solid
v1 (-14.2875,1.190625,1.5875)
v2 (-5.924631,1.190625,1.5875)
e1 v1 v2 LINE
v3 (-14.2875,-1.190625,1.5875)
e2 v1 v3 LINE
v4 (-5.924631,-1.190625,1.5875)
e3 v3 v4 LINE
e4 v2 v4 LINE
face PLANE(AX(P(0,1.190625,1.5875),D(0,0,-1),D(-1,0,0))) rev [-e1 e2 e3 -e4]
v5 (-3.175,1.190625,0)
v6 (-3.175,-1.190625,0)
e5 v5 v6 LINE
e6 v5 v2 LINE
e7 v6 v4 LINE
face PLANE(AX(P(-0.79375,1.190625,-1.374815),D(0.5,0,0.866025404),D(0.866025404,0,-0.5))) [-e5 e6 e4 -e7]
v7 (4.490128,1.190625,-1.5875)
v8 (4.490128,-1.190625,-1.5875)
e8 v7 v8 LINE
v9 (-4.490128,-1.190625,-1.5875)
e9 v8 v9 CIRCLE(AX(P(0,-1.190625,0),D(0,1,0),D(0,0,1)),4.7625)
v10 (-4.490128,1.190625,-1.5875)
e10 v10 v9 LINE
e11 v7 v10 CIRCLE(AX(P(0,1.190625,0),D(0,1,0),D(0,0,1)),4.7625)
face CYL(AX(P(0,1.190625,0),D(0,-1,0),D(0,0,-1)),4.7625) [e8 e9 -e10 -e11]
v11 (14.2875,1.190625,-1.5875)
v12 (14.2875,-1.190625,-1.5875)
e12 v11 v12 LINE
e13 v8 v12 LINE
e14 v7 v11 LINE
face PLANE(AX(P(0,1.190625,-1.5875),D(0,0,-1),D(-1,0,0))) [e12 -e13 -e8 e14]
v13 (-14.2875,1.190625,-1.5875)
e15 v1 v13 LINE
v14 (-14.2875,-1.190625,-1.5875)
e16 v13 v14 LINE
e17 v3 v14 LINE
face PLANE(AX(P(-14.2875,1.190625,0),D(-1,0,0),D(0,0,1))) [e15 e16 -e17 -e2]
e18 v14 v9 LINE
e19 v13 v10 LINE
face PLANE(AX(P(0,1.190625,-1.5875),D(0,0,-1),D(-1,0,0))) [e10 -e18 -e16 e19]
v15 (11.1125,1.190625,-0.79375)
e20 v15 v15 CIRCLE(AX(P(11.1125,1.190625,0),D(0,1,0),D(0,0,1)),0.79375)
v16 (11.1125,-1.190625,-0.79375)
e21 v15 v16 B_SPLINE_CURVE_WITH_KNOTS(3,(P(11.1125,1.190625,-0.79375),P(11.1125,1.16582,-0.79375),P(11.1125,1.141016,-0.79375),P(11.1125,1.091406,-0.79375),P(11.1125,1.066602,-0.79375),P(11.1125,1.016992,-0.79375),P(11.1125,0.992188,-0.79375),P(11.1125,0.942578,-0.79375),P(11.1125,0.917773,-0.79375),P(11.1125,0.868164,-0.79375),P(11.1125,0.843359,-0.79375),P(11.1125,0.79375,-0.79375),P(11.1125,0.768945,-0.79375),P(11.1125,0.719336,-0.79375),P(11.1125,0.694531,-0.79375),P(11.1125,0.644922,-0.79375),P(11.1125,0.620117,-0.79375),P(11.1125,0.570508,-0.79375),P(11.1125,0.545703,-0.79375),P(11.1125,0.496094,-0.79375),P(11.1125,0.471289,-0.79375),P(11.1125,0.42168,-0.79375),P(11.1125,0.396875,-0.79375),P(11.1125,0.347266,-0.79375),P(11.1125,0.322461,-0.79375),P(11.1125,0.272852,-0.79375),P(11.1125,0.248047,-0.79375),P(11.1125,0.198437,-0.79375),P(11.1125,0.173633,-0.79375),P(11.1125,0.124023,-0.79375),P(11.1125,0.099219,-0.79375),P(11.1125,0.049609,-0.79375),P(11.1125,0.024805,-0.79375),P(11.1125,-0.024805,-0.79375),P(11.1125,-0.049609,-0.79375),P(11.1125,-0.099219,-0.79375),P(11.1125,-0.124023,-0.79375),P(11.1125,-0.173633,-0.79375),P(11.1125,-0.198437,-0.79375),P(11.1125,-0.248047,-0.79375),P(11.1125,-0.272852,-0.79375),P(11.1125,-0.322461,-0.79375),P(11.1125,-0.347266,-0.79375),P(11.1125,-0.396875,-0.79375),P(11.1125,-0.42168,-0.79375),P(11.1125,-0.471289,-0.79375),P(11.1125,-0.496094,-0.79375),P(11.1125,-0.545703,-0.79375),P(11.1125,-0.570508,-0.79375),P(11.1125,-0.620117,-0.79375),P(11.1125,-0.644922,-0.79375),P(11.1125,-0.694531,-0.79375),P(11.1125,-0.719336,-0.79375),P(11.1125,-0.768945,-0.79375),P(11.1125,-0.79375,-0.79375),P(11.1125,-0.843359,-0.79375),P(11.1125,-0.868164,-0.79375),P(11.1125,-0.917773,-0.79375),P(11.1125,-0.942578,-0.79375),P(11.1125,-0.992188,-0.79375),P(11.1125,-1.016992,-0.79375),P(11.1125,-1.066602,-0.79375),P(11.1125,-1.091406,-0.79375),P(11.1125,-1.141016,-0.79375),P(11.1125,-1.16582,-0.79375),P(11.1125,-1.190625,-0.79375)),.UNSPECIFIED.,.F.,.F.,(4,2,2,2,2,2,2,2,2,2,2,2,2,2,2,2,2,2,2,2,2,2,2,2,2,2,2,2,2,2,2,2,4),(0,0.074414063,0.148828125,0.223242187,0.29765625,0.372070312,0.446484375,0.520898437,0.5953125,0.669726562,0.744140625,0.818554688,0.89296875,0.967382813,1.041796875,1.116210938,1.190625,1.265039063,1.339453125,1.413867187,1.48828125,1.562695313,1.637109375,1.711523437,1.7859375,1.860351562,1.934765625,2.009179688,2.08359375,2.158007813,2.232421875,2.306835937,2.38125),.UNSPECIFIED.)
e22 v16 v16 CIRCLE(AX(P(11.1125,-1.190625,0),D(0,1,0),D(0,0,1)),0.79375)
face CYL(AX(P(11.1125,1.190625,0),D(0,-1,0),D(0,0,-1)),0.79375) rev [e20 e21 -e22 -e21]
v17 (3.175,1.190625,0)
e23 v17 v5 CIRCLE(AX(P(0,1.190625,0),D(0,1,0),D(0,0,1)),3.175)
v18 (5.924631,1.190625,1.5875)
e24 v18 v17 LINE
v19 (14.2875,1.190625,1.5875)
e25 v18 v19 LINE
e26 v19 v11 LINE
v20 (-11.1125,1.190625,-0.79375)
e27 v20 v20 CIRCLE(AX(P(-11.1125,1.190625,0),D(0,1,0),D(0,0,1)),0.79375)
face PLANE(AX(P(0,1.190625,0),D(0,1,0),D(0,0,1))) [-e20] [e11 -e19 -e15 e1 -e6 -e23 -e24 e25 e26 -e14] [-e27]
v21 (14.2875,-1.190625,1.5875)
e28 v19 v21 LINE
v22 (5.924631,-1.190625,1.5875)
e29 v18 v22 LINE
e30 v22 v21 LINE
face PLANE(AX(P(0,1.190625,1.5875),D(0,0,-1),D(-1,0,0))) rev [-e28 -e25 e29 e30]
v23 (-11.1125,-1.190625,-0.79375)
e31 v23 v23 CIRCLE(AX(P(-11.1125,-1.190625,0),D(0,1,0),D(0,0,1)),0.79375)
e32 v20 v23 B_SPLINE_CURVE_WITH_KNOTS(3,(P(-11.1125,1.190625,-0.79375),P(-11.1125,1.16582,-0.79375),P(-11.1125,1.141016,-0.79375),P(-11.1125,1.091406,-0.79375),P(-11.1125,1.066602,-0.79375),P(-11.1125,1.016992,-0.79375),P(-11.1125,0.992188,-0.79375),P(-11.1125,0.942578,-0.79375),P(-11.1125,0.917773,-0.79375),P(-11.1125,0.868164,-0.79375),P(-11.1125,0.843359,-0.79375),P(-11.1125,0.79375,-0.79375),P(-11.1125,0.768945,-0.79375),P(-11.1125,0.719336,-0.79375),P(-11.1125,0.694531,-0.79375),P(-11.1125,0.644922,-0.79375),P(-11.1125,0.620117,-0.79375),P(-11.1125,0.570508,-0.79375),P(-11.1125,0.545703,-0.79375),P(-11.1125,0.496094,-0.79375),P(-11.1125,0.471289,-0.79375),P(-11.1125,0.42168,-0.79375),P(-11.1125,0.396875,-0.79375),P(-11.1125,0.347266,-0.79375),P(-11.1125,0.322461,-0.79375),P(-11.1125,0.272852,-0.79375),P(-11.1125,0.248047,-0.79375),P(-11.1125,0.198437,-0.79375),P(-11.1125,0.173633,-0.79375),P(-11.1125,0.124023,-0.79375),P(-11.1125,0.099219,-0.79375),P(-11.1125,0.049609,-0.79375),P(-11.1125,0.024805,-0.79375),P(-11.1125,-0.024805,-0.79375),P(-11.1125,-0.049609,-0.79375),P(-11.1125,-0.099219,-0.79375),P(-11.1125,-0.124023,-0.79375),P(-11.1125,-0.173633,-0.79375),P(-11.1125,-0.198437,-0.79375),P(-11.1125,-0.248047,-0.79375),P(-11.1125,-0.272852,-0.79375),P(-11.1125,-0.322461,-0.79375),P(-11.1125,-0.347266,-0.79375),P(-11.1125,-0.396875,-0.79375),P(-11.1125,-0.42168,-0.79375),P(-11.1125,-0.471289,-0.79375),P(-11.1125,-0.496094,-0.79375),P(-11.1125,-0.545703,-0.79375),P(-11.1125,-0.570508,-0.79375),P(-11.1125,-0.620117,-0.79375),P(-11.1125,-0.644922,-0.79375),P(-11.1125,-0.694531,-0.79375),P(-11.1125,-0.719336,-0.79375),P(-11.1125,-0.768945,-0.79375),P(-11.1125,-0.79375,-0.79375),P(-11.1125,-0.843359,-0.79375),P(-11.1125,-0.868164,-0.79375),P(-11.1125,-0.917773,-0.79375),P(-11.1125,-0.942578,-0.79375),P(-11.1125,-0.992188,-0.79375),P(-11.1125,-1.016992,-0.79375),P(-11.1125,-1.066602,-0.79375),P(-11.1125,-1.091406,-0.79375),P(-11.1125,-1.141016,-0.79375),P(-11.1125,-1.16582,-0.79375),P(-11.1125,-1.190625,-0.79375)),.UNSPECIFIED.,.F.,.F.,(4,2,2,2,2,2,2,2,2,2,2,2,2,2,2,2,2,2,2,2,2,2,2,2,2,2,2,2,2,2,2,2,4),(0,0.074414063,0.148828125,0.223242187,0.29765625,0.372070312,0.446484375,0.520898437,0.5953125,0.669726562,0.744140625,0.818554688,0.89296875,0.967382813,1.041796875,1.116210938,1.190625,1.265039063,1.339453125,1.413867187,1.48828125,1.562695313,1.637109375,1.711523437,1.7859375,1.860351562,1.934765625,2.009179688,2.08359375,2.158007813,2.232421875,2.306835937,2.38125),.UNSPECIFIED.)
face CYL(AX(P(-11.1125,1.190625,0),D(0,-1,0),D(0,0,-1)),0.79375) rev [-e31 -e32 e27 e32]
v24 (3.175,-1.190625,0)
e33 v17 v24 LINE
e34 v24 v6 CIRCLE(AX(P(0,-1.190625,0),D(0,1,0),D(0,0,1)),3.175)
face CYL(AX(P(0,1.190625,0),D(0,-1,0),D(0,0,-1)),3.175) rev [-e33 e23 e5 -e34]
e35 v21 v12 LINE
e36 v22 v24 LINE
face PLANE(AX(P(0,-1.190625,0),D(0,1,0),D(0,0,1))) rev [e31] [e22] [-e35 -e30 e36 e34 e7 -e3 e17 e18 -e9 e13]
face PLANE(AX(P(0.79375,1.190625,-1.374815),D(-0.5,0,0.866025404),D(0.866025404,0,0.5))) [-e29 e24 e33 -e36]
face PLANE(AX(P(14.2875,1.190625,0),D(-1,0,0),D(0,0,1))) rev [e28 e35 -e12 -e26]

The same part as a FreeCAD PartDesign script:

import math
import FreeCAD as App
import Part
import Sketcher

V = App.Vector
Q = App.Units.Quantity

doc = App.newDocument("Part")
body = doc.addObject("PartDesign::Body", "Body")

sketch1 = body.newObject("Sketcher::SketchObject", "Sketch")
sketch1.AttachmentSupport = (doc.getObject("XZ_Plane"), [""])
sketch1.MapMode = "FlatFace"
sketch1.addGeometry([
    Part.LineSegment(V(-5.9, 1.6, 0), V(-4.7, 0.9, 0)),
    Part.LineSegment(V(-4.7, 0.9, 0), V(-3.2, 0, 0)),
    Part.ArcOfCircle(Part.Circle(V(0, 0, 0), V(0, 0, 1), 3.2), math.radians(-180), math.radians(-150)),
    Part.ArcOfCircle(Part.Circle(V(0, 0, 0), V(0, 0, 1), 3.2), math.radians(-150), math.radians(-30)),
    Part.ArcOfCircle(Part.Circle(V(0, 0, 0), V(0, 0, 1), 3.2), math.radians(-30), math.radians(0)),
    Part.LineSegment(V(3.2, 0, 0), V(4.7, 0.9, 0)),
    Part.LineSegment(V(4.7, 0.9, 0), V(5.9, 1.6, 0)),
    Part.LineSegment(V(5.9, 1.6, 0), V(14.3, 1.6, 0)),
    Part.LineSegment(V(14.3, 1.6, 0), V(14.3, -1.6, 0)),
    Part.LineSegment(V(14.3, -1.6, 0), V(4.5, -1.6, 0)),
    Part.ArcOfCircle(Part.Circle(V(0, 0, 0), V(0, 0, 1), 4.8), math.radians(-161), math.radians(-19)),
    Part.LineSegment(V(-4.5, -1.6, 0), V(-14.3, -1.6, 0)),
    Part.LineSegment(V(-14.3, -1.6, 0), V(-14.3, 1.6, 0)),
    Part.LineSegment(V(-14.3, 1.6, 0), V(-5.9, 1.6, 0)),
    Part.Circle(V(-11.1, 0, 0), V(0, 0, 1), 0.8),
    Part.Circle(V(11.1, 0, 0), V(0, 0, 1), 0.8),
], False)
sketch1.addConstraint([
    Sketcher.Constraint("Coincident", 0, 2, 1, 1),
    Sketcher.Constraint("Coincident", 1, 2, 2, 1),
    Sketcher.Constraint("Tangent", 2, 2, 3, 1),
    Sketcher.Constraint("Tangent", 3, 2, 4, 1),
    Sketcher.Constraint("Coincident", 4, 2, 5, 1),
    Sketcher.Constraint("Coincident", 5, 2, 6, 1),
    Sketcher.Constraint("Coincident", 6, 2, 7, 1),
    Sketcher.Constraint("Coincident", 7, 2, 8, 1),
    Sketcher.Constraint("Coincident", 8, 2, 9, 1),
    Sketcher.Constraint("Coincident", 9, 2, 10, 2),
    Sketcher.Constraint("Coincident", 10, 1, 11, 1),
    Sketcher.Constraint("Coincident", 11, 2, 12, 1),
    Sketcher.Constraint("Coincident", 12, 2, 13, 1),
    Sketcher.Constraint("Coincident", 13, 2, 0, 1),
    Sketcher.Constraint("Horizontal", 7),
    Sketcher.Constraint("Vertical", 8),
    Sketcher.Constraint("Horizontal", 9),
    Sketcher.Constraint("Horizontal", 11),
    Sketcher.Constraint("Vertical", 12),
    Sketcher.Constraint("Horizontal", 13),
    Sketcher.Constraint("Coincident", 2, 3, -1, 1),
    Sketcher.Constraint("Coincident", 4, 3, -1, 1),
    Sketcher.Constraint("Coincident", 10, 3, -1, 1),
    Sketcher.Constraint("Equal", 14, 15),
    Sketcher.Constraint("Symmetric", 14, 3, 15, 3, -1, 1),
    Sketcher.Constraint("Symmetric", 7, 2, 11, 2, -1, 1),
    Sketcher.Constraint("Symmetric", 0, 2, 5, 2, -2),
    Sketcher.Constraint("Symmetric", 6, 2, 13, 2, -2),
    Sketcher.Constraint("PointOnObject", 14, 3, -1),
    Sketcher.Constraint("PointOnObject", 1, 2, -1),
    Sketcher.Constraint("PointOnObject", 4, 2, -1),
    Sketcher.Constraint("Parallel", 0, 1),
    Sketcher.Constraint("Horizontal", 2, 2, 3, 2),
    Sketcher.Constraint("Horizontal", 3, 2, 8, 2),
    Sketcher.Constraint("Horizontal", 9, 2, 10, 1),
    Sketcher.Constraint("Diameter", 14, Q("0.0625 in")),
    Sketcher.Constraint("Angle", 0, Q("-30 deg")),
    Sketcher.Constraint("Radius", 2, Q("0.125 in")),
    Sketcher.Constraint("Radius", 10, Q("0.1875 in")),
    Sketcher.Constraint("DistanceY", 8, 2, 8, 1, Q("0.125 in")),
    Sketcher.Constraint("DistanceX", 14, 3, -1, 1, Q("0.4375 in")),
    Sketcher.Constraint("DistanceX", -1, 1, 7, 2, Q("0.5625 in")),
    Sketcher.Constraint("DistanceY", -1, 1, 0, 2, Q("0.870249 mm")),
])
pad1 = body.newObject("PartDesign::Pad", "Pad")
pad1.Profile = sketch1
pad1.Length = Q("0.09375 in")
pad1.Midplane = True

doc.recompute()
